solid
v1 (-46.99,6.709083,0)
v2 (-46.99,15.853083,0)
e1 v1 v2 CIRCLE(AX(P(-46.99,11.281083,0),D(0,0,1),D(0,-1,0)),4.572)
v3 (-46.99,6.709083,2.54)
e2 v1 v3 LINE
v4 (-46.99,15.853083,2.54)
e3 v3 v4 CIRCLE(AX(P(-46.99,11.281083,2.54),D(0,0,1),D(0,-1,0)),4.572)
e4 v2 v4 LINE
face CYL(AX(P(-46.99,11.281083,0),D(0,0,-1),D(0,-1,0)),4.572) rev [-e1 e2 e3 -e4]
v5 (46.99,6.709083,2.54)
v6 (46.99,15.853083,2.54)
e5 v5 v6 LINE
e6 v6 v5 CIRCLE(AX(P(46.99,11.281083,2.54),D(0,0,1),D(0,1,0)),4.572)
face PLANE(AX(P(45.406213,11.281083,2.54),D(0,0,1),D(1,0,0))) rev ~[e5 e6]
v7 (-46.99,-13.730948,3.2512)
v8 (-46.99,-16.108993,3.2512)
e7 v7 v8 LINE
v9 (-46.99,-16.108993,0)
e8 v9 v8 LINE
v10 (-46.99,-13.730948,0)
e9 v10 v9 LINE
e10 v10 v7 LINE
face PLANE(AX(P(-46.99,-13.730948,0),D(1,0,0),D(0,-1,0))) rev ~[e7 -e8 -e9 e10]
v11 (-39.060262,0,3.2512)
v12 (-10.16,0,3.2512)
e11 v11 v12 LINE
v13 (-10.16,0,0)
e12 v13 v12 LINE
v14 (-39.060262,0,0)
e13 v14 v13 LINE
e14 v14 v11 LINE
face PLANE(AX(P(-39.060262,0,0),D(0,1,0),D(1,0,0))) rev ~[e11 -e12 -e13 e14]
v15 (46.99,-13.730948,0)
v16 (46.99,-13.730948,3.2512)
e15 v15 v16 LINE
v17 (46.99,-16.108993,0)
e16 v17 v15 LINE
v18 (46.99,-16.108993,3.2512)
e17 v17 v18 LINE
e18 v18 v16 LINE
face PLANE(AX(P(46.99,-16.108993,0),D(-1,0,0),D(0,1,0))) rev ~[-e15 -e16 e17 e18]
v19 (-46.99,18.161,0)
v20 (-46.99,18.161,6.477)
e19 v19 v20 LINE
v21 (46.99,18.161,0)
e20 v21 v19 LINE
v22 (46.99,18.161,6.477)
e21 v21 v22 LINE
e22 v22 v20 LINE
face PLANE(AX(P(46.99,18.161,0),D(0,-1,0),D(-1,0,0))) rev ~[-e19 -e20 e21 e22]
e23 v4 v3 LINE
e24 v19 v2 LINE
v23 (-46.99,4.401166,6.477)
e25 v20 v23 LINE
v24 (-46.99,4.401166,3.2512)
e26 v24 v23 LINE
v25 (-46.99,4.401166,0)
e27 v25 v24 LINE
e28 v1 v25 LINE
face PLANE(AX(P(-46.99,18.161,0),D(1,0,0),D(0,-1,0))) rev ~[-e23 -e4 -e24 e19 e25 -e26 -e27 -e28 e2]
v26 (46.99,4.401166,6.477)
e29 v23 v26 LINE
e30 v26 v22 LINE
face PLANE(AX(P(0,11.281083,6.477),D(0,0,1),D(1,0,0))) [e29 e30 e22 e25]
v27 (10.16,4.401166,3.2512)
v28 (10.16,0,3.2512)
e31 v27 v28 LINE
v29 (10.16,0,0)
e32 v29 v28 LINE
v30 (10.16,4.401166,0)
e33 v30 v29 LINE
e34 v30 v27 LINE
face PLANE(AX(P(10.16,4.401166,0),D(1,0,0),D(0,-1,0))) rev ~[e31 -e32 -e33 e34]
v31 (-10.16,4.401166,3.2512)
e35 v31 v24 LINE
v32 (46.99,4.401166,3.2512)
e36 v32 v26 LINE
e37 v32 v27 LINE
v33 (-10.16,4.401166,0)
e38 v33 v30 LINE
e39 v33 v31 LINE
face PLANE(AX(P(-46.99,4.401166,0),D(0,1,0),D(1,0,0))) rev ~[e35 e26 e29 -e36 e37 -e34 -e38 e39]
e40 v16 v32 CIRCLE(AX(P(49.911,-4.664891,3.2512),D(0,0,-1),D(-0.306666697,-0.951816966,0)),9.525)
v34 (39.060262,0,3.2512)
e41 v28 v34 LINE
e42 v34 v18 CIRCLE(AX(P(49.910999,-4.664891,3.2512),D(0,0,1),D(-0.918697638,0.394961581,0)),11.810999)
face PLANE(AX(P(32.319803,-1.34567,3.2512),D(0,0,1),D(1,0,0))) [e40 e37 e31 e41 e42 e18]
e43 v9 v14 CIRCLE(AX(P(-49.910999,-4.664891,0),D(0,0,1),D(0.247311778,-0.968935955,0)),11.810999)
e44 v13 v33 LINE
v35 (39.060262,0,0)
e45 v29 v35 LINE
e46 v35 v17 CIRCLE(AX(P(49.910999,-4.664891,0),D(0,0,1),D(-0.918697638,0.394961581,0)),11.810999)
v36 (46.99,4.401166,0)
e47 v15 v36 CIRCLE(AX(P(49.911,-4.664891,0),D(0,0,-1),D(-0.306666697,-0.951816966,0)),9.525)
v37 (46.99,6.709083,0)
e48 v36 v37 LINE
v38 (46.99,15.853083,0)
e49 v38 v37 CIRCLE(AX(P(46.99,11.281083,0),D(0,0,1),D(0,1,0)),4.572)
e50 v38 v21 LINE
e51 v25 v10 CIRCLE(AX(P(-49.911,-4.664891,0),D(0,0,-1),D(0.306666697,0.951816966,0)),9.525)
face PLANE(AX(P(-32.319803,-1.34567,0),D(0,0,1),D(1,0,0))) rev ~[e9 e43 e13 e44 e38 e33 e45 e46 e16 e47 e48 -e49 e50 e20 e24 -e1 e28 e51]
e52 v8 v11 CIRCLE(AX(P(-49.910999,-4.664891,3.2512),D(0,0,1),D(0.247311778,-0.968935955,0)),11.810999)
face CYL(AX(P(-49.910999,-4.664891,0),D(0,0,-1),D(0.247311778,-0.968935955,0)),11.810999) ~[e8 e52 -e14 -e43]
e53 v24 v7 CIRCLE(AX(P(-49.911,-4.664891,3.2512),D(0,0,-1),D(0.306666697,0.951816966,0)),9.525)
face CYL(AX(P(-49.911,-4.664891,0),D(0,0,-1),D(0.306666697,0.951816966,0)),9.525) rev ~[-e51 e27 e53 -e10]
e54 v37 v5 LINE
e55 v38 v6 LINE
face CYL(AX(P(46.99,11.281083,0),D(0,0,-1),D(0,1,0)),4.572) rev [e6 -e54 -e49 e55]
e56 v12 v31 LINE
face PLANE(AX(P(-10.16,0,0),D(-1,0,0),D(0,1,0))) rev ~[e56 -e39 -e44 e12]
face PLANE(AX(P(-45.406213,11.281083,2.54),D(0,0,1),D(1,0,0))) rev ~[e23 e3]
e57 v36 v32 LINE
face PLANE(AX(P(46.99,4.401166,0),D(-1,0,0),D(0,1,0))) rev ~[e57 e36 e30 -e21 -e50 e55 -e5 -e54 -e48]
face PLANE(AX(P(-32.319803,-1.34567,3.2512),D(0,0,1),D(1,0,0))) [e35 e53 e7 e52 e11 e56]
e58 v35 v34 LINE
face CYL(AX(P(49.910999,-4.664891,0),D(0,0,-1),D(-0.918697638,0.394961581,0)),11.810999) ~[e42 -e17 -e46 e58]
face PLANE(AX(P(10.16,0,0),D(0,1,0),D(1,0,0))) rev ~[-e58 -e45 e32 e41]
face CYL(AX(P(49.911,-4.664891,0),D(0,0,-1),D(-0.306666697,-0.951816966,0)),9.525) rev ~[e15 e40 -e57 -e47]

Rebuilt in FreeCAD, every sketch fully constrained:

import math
import FreeCAD as App
import Part
import Sketcher

V = App.Vector
Q = App.Units.Quantity

doc = App.newDocument("Part")
body = doc.addObject("PartDesign::Body", "Body")

sketch1 = body.newObject("Sketcher::SketchObject", "Sketch")
sketch1.AttachmentSupport = (doc.getObject("XY_Plane"), [""])
sketch1.MapMode = "FlatFace"
sketch1.addGeometry([
    Part.LineSegment(V(46.99, 18.161, 0), V(-46.99, 18.161, 0)),
    Part.LineSegment(V(-46.99, 18.161, 0), V(-46.99, 4.401166, 0)),
    Part.LineSegment(V(-46.99, 4.401166, 0), V(46.99, 4.401166, 0)),
    Part.LineSegment(V(46.99, 4.401166, 0), V(46.99, 18.161, 0)),
], False)
sketch1.addConstraint([
    Sketcher.Constraint("Coincident", 0, 2, 1, 1),
    Sketcher.Constraint("Coincident", 1, 2, 2, 1),
    Sketcher.Constraint("Coincident", 2, 2, 3, 1),
    Sketcher.Constraint("Coincident", 3, 2, 0, 1),
    Sketcher.Constraint("Horizontal", 0),
    Sketcher.Constraint("Vertical", 1),
    Sketcher.Constraint("Horizontal", 2),
    Sketcher.Constraint("Vertical", 3),
    Sketcher.Constraint("DistanceX", 0, 2, 0, 1, Q("3.7 in")),
    Sketcher.Constraint("DistanceX", 0, 2, -1, 1, Q("1.85 in")),
    Sketcher.Constraint("DistanceY", -1, 1, 0, 2, Q("0.715 in")),
    Sketcher.Constraint("DistanceY", 1, 2, 1, 1, 13.759834),
])
pad1 = body.newObject("PartDesign::Pad", "Pad")
pad1.Profile = sketch1
pad1.Length = Q("0.255 in")

sketch2 = body.newObject("Sketcher::SketchObject", "Sketch001")
sketch2.AttachmentSupport = (doc.getObject("XY_Plane"), [""])
sketch2.MapMode = "FlatFace"
sketch2.addGeometry([
    Part.LineSegment(V(-10.16, 4.401166, 0), V(-46.99, 4.401166, 0)),
    Part.ArcOfCircle(Part.Circle(V(-49.911, -4.664891, 0), V(0, 0, 1), 9.525), math.radians(-72.141535), math.radians(72.141535)),
    Part.LineSegment(V(-46.99, -13.730948, 0), V(-46.99, -16.108993, 0)),
    Part.ArcOfCircle(Part.Circle(V(-49.910999, -4.664891, 0), V(0, 0, 1), 11.810999), math.radians(-75.681506), math.radians(23.263578)),
    Part.LineSegment(V(-39.060262, 0, 0), V(-10.16, 0, 0)),
    Part.LineSegment(V(-10.16, 0, 0), V(-10.16, 4.401166, 0)),
    Part.ArcOfCircle(Part.Circle(V(49.911, -4.664891, 0), V(0, 0, 1), 9.525), math.radians(107.858465), math.radians(252.141535)),
    Part.LineSegment(V(46.99, 4.401166, 0), V(10.16, 4.401166, 0)),
    Part.LineSegment(V(10.16, 4.401166, 0), V(10.16, 0, 0)),
    Part.LineSegment(V(10.16, 0, 0), V(39.060262, 0, 0)),
    Part.ArcOfCircle(Part.Circle(V(49.910999, -4.664891, 0), V(0, 0, 1), 11.810999), math.radians(156.736422), math.radians(255.681506)),
    Part.LineSegment(V(46.99, -16.108993, 0), V(46.99, -13.730948, 0)),
], False)
sketch2.addConstraint([
    Sketcher.Constraint("Coincident", 0, 2, 1, 2),
    Sketcher.Constraint("Coincident", 1, 1, 2, 1),
    Sketcher.Constraint("Coincident", 2, 2, 3, 1),
    Sketcher.Constraint("Coincident", 3, 2, 4, 1),
    Sketcher.Constraint("Coincident", 4, 2, 5, 1),
    Sketcher.Constraint("Coincident", 5, 2, 0, 1),
    Sketcher.Constraint("Coincident", 6, 1, 7, 1),
    Sketcher.Constraint("Coincident", 7, 2, 8, 1),
    Sketcher.Constraint("Coincident", 8, 2, 9, 1),
    Sketcher.Constraint("Coincident", 9, 2, 10, 1),
    Sketcher.Constraint("Coincident", 10, 2, 11, 1),
    Sketcher.Constraint("Coincident", 11, 2, 6, 2),
    Sketcher.Constraint("Horizontal", 0),
    Sketcher.Constraint("Vertical", 2),
    Sketcher.Constraint("Horizontal", 4),
    Sketcher.Constraint("Vertical", 5),
    Sketcher.Constraint("Horizontal", 7),
    Sketcher.Constraint("Vertical", 8),
    Sketcher.Constraint("Horizontal", 9),
    Sketcher.Constraint("Vertical", 11),
    Sketcher.Constraint("Coincident", 3, 3, 1, 3),
    Sketcher.Constraint("Coincident", 10, 3, 6, 3),
    Sketcher.Constraint("Equal", 1, 6),
    Sketcher.Constraint("Equal", 3, 10),
    Sketcher.Constraint("Symmetric", 4, 2, 8, 2, -1, 1),
    Sketcher.Constraint("Symmetric", 1, 3, 6, 3, -2),
    Sketcher.Constraint("PointOnObject", 3, 2, -1),
    Sketcher.Constraint("Horizontal", 5, 2, 6, 1),
    Sketcher.Constraint("Horizontal", 2, 2, 10, 2),
    Sketcher.Constraint("Vertical", 0, 2, 1, 1),
    Sketcher.Constraint("Radius", 1, Q("0.375 in")),
    Sketcher.Constraint("Radius", 3, Q("0.465 in")),
    Sketcher.Constraint("DistanceX", 0, 2, 0, 1, Q("1.45 in")),
    Sketcher.Constraint("DistanceX", 4, 2, -1, 1, Q("0.4 in")),
    Sketcher.Constraint("DistanceX", 3, 3, 6, 3, Q("3.93 in")),
    Sketcher.Constraint("DistanceX", 4, 1, 4, 2, 28.900262),
])
pad2 = body.newObject("PartDesign::Pad", "Pad001")
pad2.Profile = sketch2
pad2.Length = Q("0.128 in")

sketch3 = body.newObject("Sketcher::SketchObject", "Sketch002")
sketch3.AttachmentSupport = (doc.getObject("XY_Plane"), [""])
sketch3.MapMode = "FlatFace"
sketch3.addGeometry([
    Part.LineSegment(V(-46.99, 15.853083, 0), V(-46.99, 6.709083, 0)),
    Part.ArcOfCircle(Part.Circle(V(-46.99, 11.281083, 0), V(0, 0, 1), 4.572), math.radians(-90), math.radians(90)),
    Part.ArcOfCircle(Part.Circle(V(46.99, 11.281083, 0), V(0, 0, 1), 4.572), math.radians(90), math.radians(270)),
    Part.LineSegment(V(46.99, 6.709083, 0), V(46.99, 15.853083, 0)),
], False)
sketch3.addConstraint([
    Sketcher.Constraint("Coincident", 0, 1, 1, 2),
    Sketcher.Constraint("Coincident", 1, 1, 0, 2),
    Sketcher.Constraint("Coincident", 2, 1, 3, 2),
    Sketcher.Constraint("Coincident", 3, 1, 2, 2),
    Sketcher.Constraint("Vertical", 0),
    Sketcher.Constraint("Vertical", 3),
    Sketcher.Constraint("Equal", 1, 2),
    Sketcher.Constraint("Symmetric", 1, 3, 2, 3, -2),
    Sketcher.Constraint("Vertical", 1, 3, 0, 1),
    Sketcher.Constraint("Radius", 1, Q("0.18 in")),
    Sketcher.Constraint("DistanceX", 1, 3, 2, 3, Q("3.7 in")),
    Sketcher.Constraint("DistanceX", 0, 1, 2, 1, Q("3.7 in")),
    Sketcher.Constraint("DistanceY", -1, 1, 1, 3, 11.281083),
])
pocket1 = body.newObject("PartDesign::Pocket", "Pocket")
pocket1.Profile = sketch3
pocket1.Length = Q("0.1 in")
pocket1.Reversed = True

doc.recompute()
